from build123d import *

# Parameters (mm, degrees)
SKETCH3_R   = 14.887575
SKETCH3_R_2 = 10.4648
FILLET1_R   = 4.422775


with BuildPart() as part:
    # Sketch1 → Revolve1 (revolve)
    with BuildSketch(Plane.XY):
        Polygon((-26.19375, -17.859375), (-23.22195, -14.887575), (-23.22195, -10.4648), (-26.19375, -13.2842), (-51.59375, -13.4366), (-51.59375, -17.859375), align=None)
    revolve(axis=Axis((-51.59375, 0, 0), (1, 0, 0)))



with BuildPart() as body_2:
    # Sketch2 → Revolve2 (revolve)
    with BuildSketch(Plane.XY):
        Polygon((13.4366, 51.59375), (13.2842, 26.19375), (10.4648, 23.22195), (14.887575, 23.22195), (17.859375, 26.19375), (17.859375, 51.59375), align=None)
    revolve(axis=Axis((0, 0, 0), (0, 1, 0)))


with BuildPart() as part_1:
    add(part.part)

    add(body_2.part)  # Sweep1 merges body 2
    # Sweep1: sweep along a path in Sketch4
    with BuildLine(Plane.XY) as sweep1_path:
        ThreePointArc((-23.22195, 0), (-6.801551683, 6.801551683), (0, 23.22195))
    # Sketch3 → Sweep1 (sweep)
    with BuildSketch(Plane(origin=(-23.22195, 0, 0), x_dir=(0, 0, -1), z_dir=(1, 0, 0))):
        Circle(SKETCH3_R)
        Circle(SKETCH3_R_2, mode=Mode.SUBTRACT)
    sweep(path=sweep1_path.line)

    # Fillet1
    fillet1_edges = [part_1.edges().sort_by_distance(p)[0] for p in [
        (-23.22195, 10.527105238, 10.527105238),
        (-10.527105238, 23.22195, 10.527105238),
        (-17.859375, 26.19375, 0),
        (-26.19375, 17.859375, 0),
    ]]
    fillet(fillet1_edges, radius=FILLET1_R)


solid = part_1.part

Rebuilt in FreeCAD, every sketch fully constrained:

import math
import FreeCAD as App
import Part
import Sketcher
Q = App.Units.Quantity


def edges_at(feature, points):
    """Names of the edges that pass closest to the given points."""
    edges = feature.Shape.Edges
    near = lambda p: min(range(len(edges)), key=lambda i: edges[i].distToShape(Part.Vertex(*p))[0])
    return sorted({f"Edge{near(p) + 1}" for p in points})

doc = App.newDocument("Part")
params = doc.addObject("Spreadsheet::Sheet", "Params")
for row, (alias, value) in enumerate([
    ("sketch1_width", "1 in"),
    ("revolution_angle", "360 deg"),
    ("sketch2_height", "1 in"),
    ("revolution2_angle", "360 deg"),
    ("sketch3_diameter", "0.824 in"),
    ("fillet_radius", "4.422775 mm"),
], start=1):
    params.set(f"A{row}", alias)
    params.set(f"B{row}", "=" + value)
    params.setAlias(f"B{row}", alias)

body = doc.addObject("PartDesign::Body", "Body")

sketch1 = doc.addObject("Sketcher::SketchObject", "Sketch")
body.addObject(sketch1)
sketch1.AttachmentSupport = (doc.XY_Plane, [""])
sketch1.MapMode = "FlatFace"
sketch1.addGeometry(Part.LineSegment(App.Vector(-26.2, -17.9, 0), App.Vector(-23.2, -14.9, 0)), False)
sketch1.addGeometry(Part.LineSegment(App.Vector(-23.2, -14.9, 0), App.Vector(-23.2, -10.5, 0)), False)
sketch1.addGeometry(Part.LineSegment(App.Vector(-23.2, -10.5, 0), App.Vector(-26.2, -13.3, 0)), False)
sketch1.addGeometry(Part.LineSegment(App.Vector(-26.2, -13.3, 0), App.Vector(-51.6, -13.4, 0)), False)
sketch1.addGeometry(Part.LineSegment(App.Vector(-51.6, -13.4, 0), App.Vector(-51.6, -17.9, 0)), False)
sketch1.addGeometry(Part.LineSegment(App.Vector(-51.6, -17.9, 0), App.Vector(-26.2, -17.9, 0)), False)
sketch1.addConstraint(Sketcher.Constraint("Coincident", 0, 2, 1, 1))
sketch1.addConstraint(Sketcher.Constraint("Coincident", 1, 2, 2, 1))
sketch1.addConstraint(Sketcher.Constraint("Coincident", 2, 2, 3, 1))
sketch1.addConstraint(Sketcher.Constraint("Coincident", 3, 2, 4, 1))
sketch1.addConstraint(Sketcher.Constraint("Coincident", 4, 2, 5, 1))
sketch1.addConstraint(Sketcher.Constraint("Coincident", 5, 2, 0, 1))
sketch1.addConstraint(Sketcher.Constraint("Vertical", 1))
sketch1.addConstraint(Sketcher.Constraint("Vertical", 4))
sketch1.addConstraint(Sketcher.Constraint("Horizontal", 5))
sketch1.addConstraint(Sketcher.Constraint("Vertical", 2, 2, 5, 2))
sketch1.addConstraint(Sketcher.Constraint("Equal", 1, 4))
sketch1.addConstraint(Sketcher.Constraint("DistanceX", 5, 1, 5, 2, Q("1 in")))
sketch1.addConstraint(Sketcher.Constraint("Angle", 0, Q("45 deg")))
sketch1.addConstraint(Sketcher.Constraint("DistanceY", 1, 2, -1, 1, Q("0.412 in")))
sketch1.addConstraint(Sketcher.Constraint("DistanceX", 2, 2, -1, 1, Q("1.03125 in")))
sketch1.addConstraint(Sketcher.Constraint("DistanceY", 2, 2, -1, 1, Q("0.523 in")))
sketch1.addConstraint(Sketcher.Constraint("DistanceY", 3, 2, -1, 1, Q("0.529 in")))
sketch1.addConstraint(Sketcher.Constraint("DistanceY", 4, 2, -1, 1, Q("0.703125 in")))
sketch1.setExpression("Constraints[11]", "Params.sketch1_width")
revolution = doc.addObject("PartDesign::Revolution", "Revolution")
body.addObject(revolution)
revolution.Profile = sketch1
revolution.ReferenceAxis = (sketch1, ["H_Axis"])
revolution.setExpression("Angle", "Params.revolution_angle")
body2 = doc.addObject("PartDesign::Body", "Body001")

sketch2 = doc.addObject("Sketcher::SketchObject", "Sketch001")
body2.addObject(sketch2)
sketch2.AttachmentSupport = (doc.getObject("XY_Plane001"), [""])
sketch2.MapMode = "FlatFace"
sketch2.addGeometry(Part.LineSegment(App.Vector(13.4, 51.6, 0), App.Vector(13.3, 26.2, 0)), False)
sketch2.addGeometry(Part.LineSegment(App.Vector(13.3, 26.2, 0), App.Vector(10.5, 23.2, 0)), False)
sketch2.addGeometry(Part.LineSegment(App.Vector(10.5, 23.2, 0), App.Vector(14.9, 23.2, 0)), False)
sketch2.addGeometry(Part.LineSegment(App.Vector(14.9, 23.2, 0), App.Vector(17.9, 26.2, 0)), False)
sketch2.addGeometry(Part.LineSegment(App.Vector(17.9, 26.2, 0), App.Vector(17.9, 51.6, 0)), False)
sketch2.addGeometry(Part.LineSegment(App.Vector(17.9, 51.6, 0), App.Vector(13.4, 51.6, 0)), False)
sketch2.addConstraint(Sketcher.Constraint("Coincident", 0, 2, 1, 1))
sketch2.addConstraint(Sketcher.Constraint("Coincident", 1, 2, 2, 1))
sketch2.addConstraint(Sketcher.Constraint("Coincident", 2, 2, 3, 1))
sketch2.addConstraint(Sketcher.Constraint("Coincident", 3, 2, 4, 1))
sketch2.addConstraint(Sketcher.Constraint("Coincident", 4, 2, 5, 1))
sketch2.addConstraint(Sketcher.Constraint("Coincident", 5, 2, 0, 1))
sketch2.addConstraint(Sketcher.Constraint("Horizontal", 2))
sketch2.addConstraint(Sketcher.Constraint("Vertical", 4))
sketch2.addConstraint(Sketcher.Constraint("Horizontal", 5))
sketch2.addConstraint(Sketcher.Constraint("Horizontal", 0, 2, 3, 2))
sketch2.addConstraint(Sketcher.Constraint("Equal", 2, 5))
sketch2.addConstraint(Sketcher.Constraint("DistanceY", 4, 1, 4, 2, Q("1 in")))
sketch2.addConstraint(Sketcher.Constraint("Angle", 3, Q("45 deg")))
sketch2.addConstraint(Sketcher.Constraint("DistanceX", -1, 1, 0, 2, Q("0.523 in")))
sketch2.addConstraint(Sketcher.Constraint("DistanceY", -1, 1, 0, 2, Q("1.03125 in")))
sketch2.addConstraint(Sketcher.Constraint("DistanceX", -1, 1, 1, 2, Q("0.412 in")))
sketch2.addConstraint(Sketcher.Constraint("DistanceX", -1, 1, 3, 2, Q("0.703125 in")))
sketch2.addConstraint(Sketcher.Constraint("DistanceX", -1, 1, 5, 2, Q("0.529 in")))
sketch2.setExpression("Constraints[11]", "Params.sketch2_height")
revolution2 = doc.addObject("PartDesign::Revolution", "Revolution001")
body2.addObject(revolution2)
revolution2.Profile = sketch2
revolution2.ReferenceAxis = (sketch2, ["V_Axis"])
revolution2.setExpression("Angle", "Params.revolution2_angle")
body.AllowCompound = True
doc.recompute()

boolean = doc.addObject("PartDesign::Boolean", "Boolean")
body.addObject(boolean)
boolean.Type = "Fuse"
boolean.addObjects([body2])

sketch3 = doc.addObject("Sketcher::SketchObject", "Sketch002")
body.addObject(sketch3)
sketch3.AttachmentSupport = (doc.YZ_Plane, [""])
sketch3.MapMode = "FlatFace"
sketch3.AttachmentOffset = App.Placement(App.Vector(0, 0, -23.22195), App.Rotation())
sketch3.addGeometry(Part.Circle(App.Vector(0, 0, 0), App.Vector(0, 0, 1), 15), False)
sketch3.addGeometry(Part.Circle(App.Vector(0, 0, 0), App.Vector(0, 0, 1), 10), False)
sketch3.addConstraint(Sketcher.Constraint("Coincident", 0, 3, -1, 1))
sketch3.addConstraint(Sketcher.Constraint("Coincident", 1, 3, -1, 1))
sketch3.addConstraint(Sketcher.Constraint("Diameter", 1, Q("0.824 in")))
sketch3.addConstraint(Sketcher.Constraint("Diameter", 0, Q("29.77515 mm")))
sketch3.setExpression("Constraints[2]", "Params.sketch3_diameter")

sketch4 = doc.addObject("Sketcher::SketchObject", "Sketch003")
body.addObject(sketch4)
sketch4.AttachmentSupport = (doc.XY_Plane, [""])
sketch4.MapMode = "FlatFace"
sketch4.addGeometry(Part.ArcOfCircle(Part.Circle(App.Vector(-23, 23, 0), App.Vector(0, 0, 1), 23), math.radians(-90), math.radians(0)), False)
sketch4.addConstraint(Sketcher.Constraint("PointOnObject", 0, 1, -1))
sketch4.addConstraint(Sketcher.Constraint("PointOnObject", 0, 2, -2))
sketch4.addConstraint(Sketcher.Constraint("Radius", 0, Q("23.22195 mm")))
sketch4.addConstraint(Sketcher.Constraint("DistanceX", 0, 1, -1, 1, Q("23.22195 mm")))
sketch4.addConstraint(Sketcher.Constraint("DistanceY", -1, 1, 0, 2, Q("23.22195 mm")))
doc.recompute()

additivepipe = doc.addObject("PartDesign::AdditivePipe", "AdditivePipe")
body.addObject(additivepipe)
additivepipe.Profile = sketch3
additivepipe.Spine = (sketch4, ["Edge1"])
doc.recompute()

fillet = doc.addObject("PartDesign::Fillet", "Fillet")
body.addObject(fillet)
fillet.Base = (additivepipe, edges_at(additivepipe, [
    (-23.222, 10.527, 10.527),
    (-10.527, 23.222, 10.527),
    (-17.859, 26.194, 0),
    (-26.194, 17.859, 0),
]))
fillet.setExpression("Radius", "Params.fillet_radius")

doc.recompute()
